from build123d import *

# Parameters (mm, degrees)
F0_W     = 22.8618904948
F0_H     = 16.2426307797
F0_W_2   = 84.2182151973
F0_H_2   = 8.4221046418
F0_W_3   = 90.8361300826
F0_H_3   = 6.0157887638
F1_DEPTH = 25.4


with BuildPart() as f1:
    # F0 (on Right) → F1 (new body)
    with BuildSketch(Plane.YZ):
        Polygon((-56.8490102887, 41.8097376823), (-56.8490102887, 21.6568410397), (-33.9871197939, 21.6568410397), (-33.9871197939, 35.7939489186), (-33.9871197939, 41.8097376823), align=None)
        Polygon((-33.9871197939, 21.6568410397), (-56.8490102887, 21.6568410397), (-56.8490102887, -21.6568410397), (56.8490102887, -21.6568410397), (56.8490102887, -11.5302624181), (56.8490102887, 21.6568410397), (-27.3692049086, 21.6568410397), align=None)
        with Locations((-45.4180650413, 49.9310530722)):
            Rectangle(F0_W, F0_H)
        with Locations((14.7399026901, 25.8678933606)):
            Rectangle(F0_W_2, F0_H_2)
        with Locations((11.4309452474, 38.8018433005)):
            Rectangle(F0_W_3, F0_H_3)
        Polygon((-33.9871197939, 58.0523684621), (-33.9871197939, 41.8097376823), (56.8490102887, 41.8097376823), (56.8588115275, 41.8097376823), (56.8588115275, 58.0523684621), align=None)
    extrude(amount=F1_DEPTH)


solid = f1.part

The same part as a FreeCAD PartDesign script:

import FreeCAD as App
import Part
import Sketcher
Q = App.Units.Quantity


def add_polygon(sketch, points):
    """Adds a closed chain of lines whose ends are joined by coincident constraints."""
    first, n = sketch.GeometryCount, len(points)
    for a, b in zip(points, points[1:] + points[:1]):
        sketch.addGeometry(Part.LineSegment(App.Vector(*a, 0), App.Vector(*b, 0)), False)
    for i in range(n):
        sketch.addConstraint(Sketcher.Constraint("Coincident", first + i, 2, first + (i + 1) % n, 1))

doc = App.newDocument("Part")
body = doc.addObject("PartDesign::Body", "Body")

# Sketch on YZ plane
sketch1 = body.newObject("Sketcher::SketchObject", "Sketch")
sketch1.AttachmentSupport = (doc.getObject("YZ_Plane"), [""])
sketch1.MapMode = "FlatFace"
add_polygon(sketch1, [(-56.84901, -21.656841), (56.84901, -21.656841), (56.84901, 30.078946), (-27.369205, 30.078946), (-27.369205, 21.656841), (-33.98712, 21.656841), (-33.98712, 35.793949), (56.84901, 35.793949), (56.84901, 41.809738), (56.858812, 41.809738), (56.858812, 58.052368), (-56.84901, 58.052368)])  # lines 0-11
sketch1.addConstraint(Sketcher.Constraint("Horizontal", 0))
sketch1.addConstraint(Sketcher.Constraint("Vertical", 1))
sketch1.addConstraint(Sketcher.Constraint("Horizontal", 2))
sketch1.addConstraint(Sketcher.Constraint("Vertical", 3))
sketch1.addConstraint(Sketcher.Constraint("Horizontal", 4))
sketch1.addConstraint(Sketcher.Constraint("Vertical", 5))
sketch1.addConstraint(Sketcher.Constraint("Horizontal", 6))
sketch1.addConstraint(Sketcher.Constraint("Vertical", 7))
sketch1.addConstraint(Sketcher.Constraint("Horizontal", 8))
sketch1.addConstraint(Sketcher.Constraint("Vertical", 9))
sketch1.addConstraint(Sketcher.Constraint("Horizontal", 10))
sketch1.addConstraint(Sketcher.Constraint("Vertical", 11))
sketch1.addConstraint(Sketcher.Constraint("Vertical", 1, 2, 6, 2))
sketch1.addConstraint(Sketcher.Constraint("DistanceX", 0, 1, 0, 2, Q("4.4763 in")))
sketch1.addConstraint(Sketcher.Constraint("DistanceY", 2, 2, 5, 2, Q("0.2250001 in")))
sketch1.addConstraint(Sketcher.Constraint("DistanceX", 8, 1, 8, 2, Q("0.009801 mm")))
sketch1.addConstraint(Sketcher.Constraint("DistanceX", 6, 1, 6, 2, Q("90.83613 mm")))
sketch1.addConstraint(Sketcher.Constraint("DistanceY", 7, 1, 7, 2, Q("6.015789 mm")))
sketch1.addConstraint(Sketcher.Constraint("DistanceY", 9, 1, 9, 2, Q("16.242631 mm")))
sketch1.addConstraint(Sketcher.Constraint("DistanceY", 11, 2, 11, 1, Q("79.70921 mm")))
sketch1.addConstraint(Sketcher.Constraint("DistanceX", 2, 2, 2, 1, Q("84.218215 mm")))
sketch1.addConstraint(Sketcher.Constraint("DistanceY", 3, 2, 3, 1, Q("8.422105 mm")))
sketch1.addConstraint(Sketcher.Constraint("DistanceX", -1, 1, 0, 2, Q("56.84901 mm")))
sketch1.addConstraint(Sketcher.Constraint("DistanceY", 0, 2, -1, 1, Q("21.656841 mm")))
pad1 = body.newObject("PartDesign::Pad", "Pad")
pad1.Profile = sketch1
pad1.Length = Q("1 in")

doc.recompute()
